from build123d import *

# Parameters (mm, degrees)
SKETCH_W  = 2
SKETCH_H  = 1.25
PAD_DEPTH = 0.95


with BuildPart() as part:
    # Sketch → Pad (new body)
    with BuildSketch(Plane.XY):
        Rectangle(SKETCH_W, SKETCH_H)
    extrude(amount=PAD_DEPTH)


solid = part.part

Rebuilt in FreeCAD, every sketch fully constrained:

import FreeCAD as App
import Part
import Sketcher
from FreeCAD import Vector


def add_polygon(sketch, points):
    """Adds a closed chain of lines whose ends are joined by coincident constraints."""
    first, n = sketch.GeometryCount, len(points)
    for a, b in zip(points, points[1:] + points[:1]):
        sketch.addGeometry(Part.LineSegment(App.Vector(*a, 0), App.Vector(*b, 0)), False)
    for i in range(n):
        sketch.addConstraint(Sketcher.Constraint("Coincident", first + i, 2, first + (i + 1) % n, 1))

doc = App.newDocument("Part")
body = doc.addObject("PartDesign::Body", "Body")

# Sketch on XY plane
sketch1 = body.newObject("Sketcher::SketchObject", "Sketch")
sketch1.AttachmentSupport = (doc.getObject("XY_Plane"), [""])
sketch1.MapMode = "FlatFace"
add_polygon(sketch1, [(-1, 0.6), (-1, -0.6), (1, -0.6), (1, 0.6)])  # lines 0-3
sketch1.addConstraint([
    Sketcher.Constraint("Vertical", 0),
    Sketcher.Constraint("Horizontal", 1),
    Sketcher.Constraint("Vertical", 2),
    Sketcher.Constraint("Horizontal", 3),
    Sketcher.Constraint("Symmetric", 0, 2, 2, 2, -1, 1),
    Sketcher.Constraint("DistanceX", 1, 1, 1, 2, 2.0),
    Sketcher.Constraint("DistanceY", 0, 2, 0, 1, 1.25),
])
pad1 = body.newObject("PartDesign::Pad", "Pad")
pad1.Profile = sketch1
pad1.Length = 0.95

doc.recompute()
